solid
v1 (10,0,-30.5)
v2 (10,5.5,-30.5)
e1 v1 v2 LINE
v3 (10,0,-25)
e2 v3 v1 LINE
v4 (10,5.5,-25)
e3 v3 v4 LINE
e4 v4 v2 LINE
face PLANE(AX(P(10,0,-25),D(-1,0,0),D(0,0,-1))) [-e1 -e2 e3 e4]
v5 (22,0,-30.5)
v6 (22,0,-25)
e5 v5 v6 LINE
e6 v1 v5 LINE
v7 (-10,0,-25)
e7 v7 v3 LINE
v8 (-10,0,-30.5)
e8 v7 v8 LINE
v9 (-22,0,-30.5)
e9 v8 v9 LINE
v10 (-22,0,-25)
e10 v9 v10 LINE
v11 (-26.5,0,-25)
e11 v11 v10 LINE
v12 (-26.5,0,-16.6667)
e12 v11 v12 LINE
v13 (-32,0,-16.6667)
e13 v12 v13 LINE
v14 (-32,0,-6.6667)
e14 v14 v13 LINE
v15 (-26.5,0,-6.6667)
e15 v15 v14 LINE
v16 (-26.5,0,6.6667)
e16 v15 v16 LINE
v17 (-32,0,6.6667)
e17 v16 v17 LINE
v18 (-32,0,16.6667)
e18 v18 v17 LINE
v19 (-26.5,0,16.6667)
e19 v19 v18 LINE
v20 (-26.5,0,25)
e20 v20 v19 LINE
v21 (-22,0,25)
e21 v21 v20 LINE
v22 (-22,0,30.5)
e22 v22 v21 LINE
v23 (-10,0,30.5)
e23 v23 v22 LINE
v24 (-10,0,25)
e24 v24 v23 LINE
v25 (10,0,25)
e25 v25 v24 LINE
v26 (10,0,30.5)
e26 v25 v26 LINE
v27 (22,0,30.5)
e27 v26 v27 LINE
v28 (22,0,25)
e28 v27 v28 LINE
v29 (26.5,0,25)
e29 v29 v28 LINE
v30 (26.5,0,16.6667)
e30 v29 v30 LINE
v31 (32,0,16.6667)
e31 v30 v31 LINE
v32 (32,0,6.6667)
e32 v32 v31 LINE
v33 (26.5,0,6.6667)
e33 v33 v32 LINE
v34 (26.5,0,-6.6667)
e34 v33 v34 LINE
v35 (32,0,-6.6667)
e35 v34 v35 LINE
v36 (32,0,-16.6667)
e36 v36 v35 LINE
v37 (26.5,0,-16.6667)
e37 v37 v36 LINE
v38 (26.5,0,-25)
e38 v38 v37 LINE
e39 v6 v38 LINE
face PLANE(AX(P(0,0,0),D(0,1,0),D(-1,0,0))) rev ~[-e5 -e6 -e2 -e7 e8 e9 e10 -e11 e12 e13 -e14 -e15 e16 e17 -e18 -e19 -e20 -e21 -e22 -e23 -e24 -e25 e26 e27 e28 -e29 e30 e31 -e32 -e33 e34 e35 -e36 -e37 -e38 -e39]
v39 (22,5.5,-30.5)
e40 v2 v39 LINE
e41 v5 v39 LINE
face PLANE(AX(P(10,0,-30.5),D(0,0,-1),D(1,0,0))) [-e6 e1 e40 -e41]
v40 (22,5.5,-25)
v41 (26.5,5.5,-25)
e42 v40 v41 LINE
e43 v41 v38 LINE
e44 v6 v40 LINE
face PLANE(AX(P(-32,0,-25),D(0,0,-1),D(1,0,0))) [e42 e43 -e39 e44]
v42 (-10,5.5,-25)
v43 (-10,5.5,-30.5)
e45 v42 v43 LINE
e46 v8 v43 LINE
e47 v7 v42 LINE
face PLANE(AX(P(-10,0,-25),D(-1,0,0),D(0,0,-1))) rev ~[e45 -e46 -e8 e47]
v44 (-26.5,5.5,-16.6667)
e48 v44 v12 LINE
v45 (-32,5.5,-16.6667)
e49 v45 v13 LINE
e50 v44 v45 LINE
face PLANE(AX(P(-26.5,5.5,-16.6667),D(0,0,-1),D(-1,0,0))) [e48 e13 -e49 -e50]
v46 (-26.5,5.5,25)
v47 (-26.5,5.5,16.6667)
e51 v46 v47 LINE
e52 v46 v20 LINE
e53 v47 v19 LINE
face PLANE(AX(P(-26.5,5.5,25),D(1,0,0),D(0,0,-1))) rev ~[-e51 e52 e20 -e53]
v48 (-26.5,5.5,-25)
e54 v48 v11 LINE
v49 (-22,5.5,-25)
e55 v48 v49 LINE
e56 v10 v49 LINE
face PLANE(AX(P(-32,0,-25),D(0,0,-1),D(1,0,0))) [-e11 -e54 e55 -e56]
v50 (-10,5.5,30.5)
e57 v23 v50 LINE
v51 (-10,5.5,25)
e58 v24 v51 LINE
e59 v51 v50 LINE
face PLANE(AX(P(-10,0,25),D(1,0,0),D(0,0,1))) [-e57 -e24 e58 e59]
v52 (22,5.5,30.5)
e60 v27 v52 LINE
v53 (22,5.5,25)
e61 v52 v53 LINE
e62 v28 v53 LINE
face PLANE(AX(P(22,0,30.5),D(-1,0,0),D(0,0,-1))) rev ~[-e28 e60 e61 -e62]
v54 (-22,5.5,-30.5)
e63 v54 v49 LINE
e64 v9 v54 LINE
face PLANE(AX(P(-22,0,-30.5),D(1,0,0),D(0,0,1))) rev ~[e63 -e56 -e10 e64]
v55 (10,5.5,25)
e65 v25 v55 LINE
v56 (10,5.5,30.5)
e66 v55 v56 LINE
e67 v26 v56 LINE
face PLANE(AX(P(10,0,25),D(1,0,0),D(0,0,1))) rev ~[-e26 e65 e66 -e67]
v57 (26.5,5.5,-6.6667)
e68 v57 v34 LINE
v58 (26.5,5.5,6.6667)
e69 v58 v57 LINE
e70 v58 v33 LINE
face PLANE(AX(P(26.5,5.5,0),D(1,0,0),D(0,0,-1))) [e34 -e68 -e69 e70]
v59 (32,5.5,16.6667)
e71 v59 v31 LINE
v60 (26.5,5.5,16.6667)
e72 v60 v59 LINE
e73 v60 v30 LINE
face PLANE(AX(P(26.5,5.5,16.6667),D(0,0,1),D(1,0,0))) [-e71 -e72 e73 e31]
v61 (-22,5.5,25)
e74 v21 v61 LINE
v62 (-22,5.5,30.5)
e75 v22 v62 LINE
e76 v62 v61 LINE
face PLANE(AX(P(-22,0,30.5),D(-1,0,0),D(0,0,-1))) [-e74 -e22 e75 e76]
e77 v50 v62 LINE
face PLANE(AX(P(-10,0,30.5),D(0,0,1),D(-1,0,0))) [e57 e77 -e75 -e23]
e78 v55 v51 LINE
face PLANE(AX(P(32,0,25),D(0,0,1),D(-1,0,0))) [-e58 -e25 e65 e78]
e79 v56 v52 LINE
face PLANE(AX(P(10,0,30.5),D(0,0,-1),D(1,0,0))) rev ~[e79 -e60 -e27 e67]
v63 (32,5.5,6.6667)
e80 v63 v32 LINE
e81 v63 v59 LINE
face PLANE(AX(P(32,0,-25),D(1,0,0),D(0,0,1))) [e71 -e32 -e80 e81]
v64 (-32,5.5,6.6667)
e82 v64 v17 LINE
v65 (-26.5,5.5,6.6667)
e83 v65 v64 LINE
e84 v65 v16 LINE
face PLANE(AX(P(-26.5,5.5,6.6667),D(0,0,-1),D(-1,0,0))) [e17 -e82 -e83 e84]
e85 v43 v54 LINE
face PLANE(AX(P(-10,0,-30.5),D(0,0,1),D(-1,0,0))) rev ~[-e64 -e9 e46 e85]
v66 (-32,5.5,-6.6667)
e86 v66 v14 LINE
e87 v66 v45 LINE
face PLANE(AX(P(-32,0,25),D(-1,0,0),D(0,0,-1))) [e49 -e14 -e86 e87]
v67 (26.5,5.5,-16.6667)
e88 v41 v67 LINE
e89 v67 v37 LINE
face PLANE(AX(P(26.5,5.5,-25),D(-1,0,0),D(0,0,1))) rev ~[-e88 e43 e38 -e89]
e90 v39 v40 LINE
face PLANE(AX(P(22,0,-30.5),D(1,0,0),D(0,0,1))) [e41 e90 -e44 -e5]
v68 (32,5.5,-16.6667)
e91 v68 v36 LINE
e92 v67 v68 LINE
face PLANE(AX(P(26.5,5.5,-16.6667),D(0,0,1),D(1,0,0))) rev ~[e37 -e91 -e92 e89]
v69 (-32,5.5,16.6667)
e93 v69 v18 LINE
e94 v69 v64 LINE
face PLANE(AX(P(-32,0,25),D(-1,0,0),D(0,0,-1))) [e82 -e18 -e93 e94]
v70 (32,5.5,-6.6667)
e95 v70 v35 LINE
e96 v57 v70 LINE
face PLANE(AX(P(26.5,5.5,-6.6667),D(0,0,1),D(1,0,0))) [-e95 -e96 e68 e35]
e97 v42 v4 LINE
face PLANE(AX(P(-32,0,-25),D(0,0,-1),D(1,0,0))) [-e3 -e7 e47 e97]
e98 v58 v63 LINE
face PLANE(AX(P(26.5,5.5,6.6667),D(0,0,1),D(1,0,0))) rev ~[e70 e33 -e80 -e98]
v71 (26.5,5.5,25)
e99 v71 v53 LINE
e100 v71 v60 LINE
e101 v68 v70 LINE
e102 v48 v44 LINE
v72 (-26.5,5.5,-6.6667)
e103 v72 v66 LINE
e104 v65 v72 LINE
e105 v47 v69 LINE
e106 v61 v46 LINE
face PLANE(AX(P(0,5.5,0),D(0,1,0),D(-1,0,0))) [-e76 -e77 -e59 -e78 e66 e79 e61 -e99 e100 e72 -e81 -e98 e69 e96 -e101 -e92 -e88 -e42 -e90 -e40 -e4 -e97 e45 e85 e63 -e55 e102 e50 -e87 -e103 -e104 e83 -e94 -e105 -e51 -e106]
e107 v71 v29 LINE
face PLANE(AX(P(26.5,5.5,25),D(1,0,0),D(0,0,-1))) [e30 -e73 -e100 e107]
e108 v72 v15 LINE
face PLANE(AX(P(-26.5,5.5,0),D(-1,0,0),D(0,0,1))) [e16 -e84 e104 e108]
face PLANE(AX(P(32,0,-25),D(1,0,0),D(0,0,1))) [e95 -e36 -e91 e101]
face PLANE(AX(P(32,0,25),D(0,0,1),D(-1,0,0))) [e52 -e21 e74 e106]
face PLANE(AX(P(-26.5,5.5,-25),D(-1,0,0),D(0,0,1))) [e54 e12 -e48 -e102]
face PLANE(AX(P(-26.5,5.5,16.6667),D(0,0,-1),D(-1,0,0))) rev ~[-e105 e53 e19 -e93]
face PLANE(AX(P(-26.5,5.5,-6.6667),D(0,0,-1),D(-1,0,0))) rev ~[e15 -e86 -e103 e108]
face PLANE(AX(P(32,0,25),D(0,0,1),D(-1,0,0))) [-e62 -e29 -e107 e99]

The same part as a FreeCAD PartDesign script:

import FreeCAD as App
import Part
import Sketcher

V = App.Vector

doc = App.newDocument("Part")
body = doc.addObject("PartDesign::Body", "Body")

# Sketch on XZ plane
sketch1 = body.newObject("Sketcher::SketchObject", "Sketch")
sketch1.AttachmentSupport = (doc.getObject("XZ_Plane"), [""])
sketch1.MapMode = "FlatFace"
sketch1.addGeometry([
    Part.LineSegment(V(32, -25, 0), V(-32, -25, 0)),
    Part.LineSegment(V(-32, -25, 0), V(-32, 25, 0)),
    Part.LineSegment(V(-32, 25, 0), V(32, 25, 0)),
    Part.LineSegment(V(32, 25, 0), V(32, -25, 0)),
], False)
sketch1.addConstraint([
    Sketcher.Constraint("Coincident", 0, 2, 1, 1),
    Sketcher.Constraint("Coincident", 1, 2, 2, 1),
    Sketcher.Constraint("Coincident", 2, 2, 3, 1),
    Sketcher.Constraint("Coincident", 3, 2, 0, 1),
    Sketcher.Constraint("Horizontal", 0),
    Sketcher.Constraint("Vertical", 1),
    Sketcher.Constraint("Horizontal", 2),
    Sketcher.Constraint("Vertical", 3),
    Sketcher.Constraint("Symmetric", 0, 2, 2, 2, -1, 1),
    Sketcher.Constraint("DistanceX", 0, 2, 0, 1, 64.0),
    Sketcher.Constraint("DistanceY", 1, 1, 1, 2, 50.0),
])
pad1 = body.newObject("PartDesign::Pad", "Pad")
pad1.Profile = sketch1
pad1.Length = 5.5
pad1.Reversed = True

# Sketch on XZ plane
sketch2 = body.newObject("Sketcher::SketchObject", "Sketch001")
sketch2.AttachmentSupport = (doc.getObject("XZ_Plane"), [""])
sketch2.MapMode = "FlatFace"
sketch2.addGeometry([
    Part.LineSegment(V(22, -25, 0), V(10, -25, 0)),  # 0
    Part.LineSegment(V(10, -25, 0), V(10, -30.5, 0)),  # 1
    Part.LineSegment(V(10, -30.5, 0), V(22, -30.5, 0)),  # 2
    Part.LineSegment(V(22, -30.5, 0), V(22, -25, 0)),  # 3
    Part.LineSegment(V(-10, -25, 0), V(-22, -25, 0)),  # 4
    Part.LineSegment(V(-22, -25, 0), V(-22, -30.5, 0)),  # 5
    Part.LineSegment(V(-22, -30.5, 0), V(-10, -30.5, 0)),  # 6
    Part.LineSegment(V(-10, -30.5, 0), V(-10, -25, 0)),  # 7
    Part.LineSegment(V(-22, 30.5, 0), V(-22, 25, 0)),  # 8
    Part.LineSegment(V(-22, 25, 0), V(-10, 25, 0)),  # 9
    Part.LineSegment(V(-10, 25, 0), V(-10, 30.5, 0)),  # 10
    Part.LineSegment(V(-10, 30.5, 0), V(-22, 30.5, 0)),  # 11
    Part.LineSegment(V(10, 30.5, 0), V(10, 25, 0)),  # 12
    Part.LineSegment(V(10, 25, 0), V(22, 25, 0)),  # 13
    Part.LineSegment(V(22, 25, 0), V(22, 30.5, 0)),  # 14
    Part.LineSegment(V(22, 30.5, 0), V(10, 30.5, 0)),  # 15
], False)
sketch2.addConstraint([
    Sketcher.Constraint("Coincident", 0, 2, 1, 1),
    Sketcher.Constraint("Coincident", 1, 2, 2, 1),
    Sketcher.Constraint("Coincident", 2, 2, 3, 1),
    Sketcher.Constraint("Coincident", 3, 2, 0, 1),
    Sketcher.Constraint("Coincident", 4, 2, 5, 1),
    Sketcher.Constraint("Coincident", 5, 2, 6, 1),
    Sketcher.Constraint("Coincident", 6, 2, 7, 1),
    Sketcher.Constraint("Coincident", 7, 2, 4, 1),
    Sketcher.Constraint("Coincident", 8, 2, 9, 1),
    Sketcher.Constraint("Coincident", 9, 2, 10, 1),
    Sketcher.Constraint("Coincident", 10, 2, 11, 1),
    Sketcher.Constraint("Coincident", 11, 2, 8, 1),
    Sketcher.Constraint("Coincident", 12, 2, 13, 1),
    Sketcher.Constraint("Coincident", 13, 2, 14, 1),
    Sketcher.Constraint("Coincident", 14, 2, 15, 1),
    Sketcher.Constraint("Coincident", 15, 2, 12, 1),
    Sketcher.Constraint("Horizontal", 0),
    Sketcher.Constraint("Vertical", 1),
    Sketcher.Constraint("Horizontal", 2),
    Sketcher.Constraint("Vertical", 3),
    Sketcher.Constraint("Horizontal", 4),
    Sketcher.Constraint("Vertical", 5),
    Sketcher.Constraint("Horizontal", 6),
    Sketcher.Constraint("Vertical", 7),
    Sketcher.Constraint("Vertical", 8),
    Sketcher.Constraint("Horizontal", 9),
    Sketcher.Constraint("Vertical", 10),
    Sketcher.Constraint("Horizontal", 11),
    Sketcher.Constraint("Vertical", 12),
    Sketcher.Constraint("Horizontal", 13),
    Sketcher.Constraint("Vertical", 14),
    Sketcher.Constraint("Horizontal", 15),
    Sketcher.Constraint("Symmetric", 3, 2, 8, 2, -1, 1),
    Sketcher.Constraint("Symmetric", 1, 2, 10, 2, -1, 1),
    Sketcher.Constraint("Symmetric", 7, 2, 12, 2, -1, 1),
    Sketcher.Constraint("Symmetric", 5, 2, 14, 2, -1, 1),
    Sketcher.Constraint("Symmetric", 3, 2, 4, 2, -2),
    Sketcher.Constraint("Symmetric", 1, 2, 6, 2, -2),
    Sketcher.Constraint("DistanceX", 0, 2, 0, 1, 12.0),
    Sketcher.Constraint("DistanceY", 1, 2, 1, 1, 5.5),
    Sketcher.Constraint("DistanceX", 6, 2, 1, 2, 20.0),
    Sketcher.Constraint("DistanceY", 0, 2, -1, 1, 25.0),
])
pad2 = body.newObject("PartDesign::Pad", "Pad001")
pad2.Profile = sketch2
pad2.Length = 5.5
pad2.Reversed = True

# Sketch on XZ plane
sketch3 = body.newObject("Sketcher::SketchObject", "Sketch002")
sketch3.AttachmentSupport = (doc.getObject("XZ_Plane"), [""])
sketch3.MapMode = "FlatFace"
sketch3.AttachmentOffset = App.Placement(V(0, 0, -5.5), App.Rotation())
sketch3.addGeometry([
    Part.LineSegment(V(-32, 16.6667, 0), V(-32, 25, 0)),  # 0
    Part.LineSegment(V(-32, 25, 0), V(-26.5, 25, 0)),  # 1
    Part.LineSegment(V(-26.5, 25, 0), V(-26.5, 16.6667, 0)),  # 2
    Part.LineSegment(V(-26.5, 16.6667, 0), V(-32, 16.6667, 0)),  # 3
    Part.LineSegment(V(-26.5, -25, 0), V(-32, -25, 0)),  # 4
    Part.LineSegment(V(-32, -25, 0), V(-32, -16.6667, 0)),  # 5
    Part.LineSegment(V(-32, -16.6667, 0), V(-26.5, -16.6667, 0)),  # 6
    Part.LineSegment(V(-26.5, -16.6667, 0), V(-26.5, -25, 0)),  # 7
    Part.LineSegment(V(26.5, 25, 0), V(32, 25, 0)),  # 8
    Part.LineSegment(V(32, 25, 0), V(32, 16.6667, 0)),  # 9
    Part.LineSegment(V(32, 16.6667, 0), V(26.5, 16.6667, 0)),  # 10
    Part.LineSegment(V(26.5, 16.6667, 0), V(26.5, 25, 0)),  # 11
    Part.LineSegment(V(32, -25, 0), V(26.5, -25, 0)),  # 12
    Part.LineSegment(V(26.5, -25, 0), V(26.5, -16.6667, 0)),  # 13
    Part.LineSegment(V(26.5, -16.6667, 0), V(32, -16.6667, 0)),  # 14
    Part.LineSegment(V(32, -16.6667, 0), V(32, -25, 0)),  # 15
], False)
sketch3.addConstraint([
    Sketcher.Constraint("Coincident", 0, 2, 1, 1),
    Sketcher.Constraint("Coincident", 1, 2, 2, 1),
    Sketcher.Constraint("Coincident", 2, 2, 3, 1),
    Sketcher.Constraint("Coincident", 3, 2, 0, 1),
    Sketcher.Constraint("Coincident", 4, 2, 5, 1),
    Sketcher.Constraint("Coincident", 5, 2, 6, 1),
    Sketcher.Constraint("Coincident", 6, 2, 7, 1),
    Sketcher.Constraint("Coincident", 7, 2, 4, 1),
    Sketcher.Constraint("Coincident", 8, 2, 9, 1),
    Sketcher.Constraint("Coincident", 9, 2, 10, 1),
    Sketcher.Constraint("Coincident", 10, 2, 11, 1),
    Sketcher.Constraint("Coincident", 11, 2, 8, 1),
    Sketcher.Constraint("Coincident", 12, 2, 13, 1),
    Sketcher.Constraint("Coincident", 13, 2, 14, 1),
    Sketcher.Constraint("Coincident", 14, 2, 15, 1),
    Sketcher.Constraint("Coincident", 15, 2, 12, 1),
    Sketcher.Constraint("Vertical", 0),
    Sketcher.Constraint("Horizontal", 1),
    Sketcher.Constraint("Vertical", 2),
    Sketcher.Constraint("Horizontal", 3),
    Sketcher.Constraint("Horizontal", 4),
    Sketcher.Constraint("Vertical", 5),
    Sketcher.Constraint("Horizontal", 6),
    Sketcher.Constraint("Vertical", 7),
    Sketcher.Constraint("Horizontal", 8),
    Sketcher.Constraint("Vertical", 9),
    Sketcher.Constraint("Horizontal", 10),
    Sketcher.Constraint("Vertical", 11),
    Sketcher.Constraint("Horizontal", 12),
    Sketcher.Constraint("Vertical", 13),
    Sketcher.Constraint("Horizontal", 14),
    Sketcher.Constraint("Vertical", 15),
    Sketcher.Constraint("Symmetric", 4, 2, 8, 2, -1, 1),
    Sketcher.Constraint("Symmetric", 6, 2, 10, 2, -1, 1),
    Sketcher.Constraint("Symmetric", 1, 2, 12, 2, -1, 1),
    Sketcher.Constraint("Symmetric", 3, 2, 14, 2, -1, 1),
    Sketcher.Constraint("Symmetric", 0, 2, 8, 2, -2),
    Sketcher.Constraint("Symmetric", 2, 2, 10, 2, -2),
    Sketcher.Constraint("DistanceX", 1, 1, 1, 2, 5.5),
    Sketcher.Constraint("DistanceY", 0, 1, 0, 2, 8.3333),
    Sketcher.Constraint("DistanceX", 0, 2, -1, 1, 32.0),
    Sketcher.Constraint("DistanceY", -1, 1, 0, 2, 25.0),
])
pocket1 = body.newObject("PartDesign::Pocket", "Pocket")
pocket1.Profile = sketch3
pocket1.Type = "ThroughAll"
pocket1.Reversed = True

# Sketch on XZ plane
sketch4 = body.newObject("Sketcher::SketchObject", "Sketch003")
sketch4.AttachmentSupport = (doc.getObject("XZ_Plane"), [""])
sketch4.MapMode = "FlatFace"
sketch4.AttachmentOffset = App.Placement(V(0, 0, -5.5), App.Rotation())
sketch4.addGeometry([
    Part.LineSegment(V(26.5, -6.6667, 0), V(26.5, 6.6667, 0)),  # 0
    Part.LineSegment(V(26.5, 6.6667, 0), V(32, 6.6667, 0)),  # 1
    Part.LineSegment(V(32, 6.6667, 0), V(32, -6.6667, 0)),  # 2
    Part.LineSegment(V(32, -6.6667, 0), V(26.5, -6.6667, 0)),  # 3
    Part.LineSegment(V(-32, 6.6667, 0), V(-26.5, 6.6667, 0)),  # 4
    Part.LineSegment(V(-26.5, 6.6667, 0), V(-26.5, -6.6667, 0)),  # 5
    Part.LineSegment(V(-26.5, -6.6667, 0), V(-32, -6.6667, 0)),  # 6
    Part.LineSegment(V(-32, -6.6667, 0), V(-32, 6.6667, 0)),  # 7
], False)
sketch4.addConstraint([
    Sketcher.Constraint("Coincident", 0, 2, 1, 1),
    Sketcher.Constraint("Coincident", 1, 2, 2, 1),
    Sketcher.Constraint("Coincident", 2, 2, 3, 1),
    Sketcher.Constraint("Coincident", 3, 2, 0, 1),
    Sketcher.Constraint("Coincident", 4, 2, 5, 1),
    Sketcher.Constraint("Coincident", 5, 2, 6, 1),
    Sketcher.Constraint("Coincident", 6, 2, 7, 1),
    Sketcher.Constraint("Coincident", 7, 2, 4, 1),
    Sketcher.Constraint("Vertical", 0),
    Sketcher.Constraint("Horizontal", 1),
    Sketcher.Constraint("Vertical", 2),
    Sketcher.Constraint("Horizontal", 3),
    Sketcher.Constraint("Horizontal", 4),
    Sketcher.Constraint("Vertical", 5),
    Sketcher.Constraint("Horizontal", 6),
    Sketcher.Constraint("Vertical", 7),
    Sketcher.Constraint("Symmetric", 3, 2, 4, 2, -1, 1),
    Sketcher.Constraint("Symmetric", 1, 2, 6, 2, -1, 1),
    Sketcher.Constraint("Horizontal", 1, 2, 4, 2),
    Sketcher.Constraint("DistanceX", 1, 1, 1, 2, 5.5),
    Sketcher.Constraint("DistanceX", -1, 1, 1, 2, 32.0),
    Sketcher.Constraint("DistanceY", 0, 1, 0, 2, 13.3334),
])
pocket2 = body.newObject("PartDesign::Pocket", "Pocket001")
pocket2.Profile = sketch4
pocket2.Type = "ThroughAll"
pocket2.Reversed = True

doc.recompute()
